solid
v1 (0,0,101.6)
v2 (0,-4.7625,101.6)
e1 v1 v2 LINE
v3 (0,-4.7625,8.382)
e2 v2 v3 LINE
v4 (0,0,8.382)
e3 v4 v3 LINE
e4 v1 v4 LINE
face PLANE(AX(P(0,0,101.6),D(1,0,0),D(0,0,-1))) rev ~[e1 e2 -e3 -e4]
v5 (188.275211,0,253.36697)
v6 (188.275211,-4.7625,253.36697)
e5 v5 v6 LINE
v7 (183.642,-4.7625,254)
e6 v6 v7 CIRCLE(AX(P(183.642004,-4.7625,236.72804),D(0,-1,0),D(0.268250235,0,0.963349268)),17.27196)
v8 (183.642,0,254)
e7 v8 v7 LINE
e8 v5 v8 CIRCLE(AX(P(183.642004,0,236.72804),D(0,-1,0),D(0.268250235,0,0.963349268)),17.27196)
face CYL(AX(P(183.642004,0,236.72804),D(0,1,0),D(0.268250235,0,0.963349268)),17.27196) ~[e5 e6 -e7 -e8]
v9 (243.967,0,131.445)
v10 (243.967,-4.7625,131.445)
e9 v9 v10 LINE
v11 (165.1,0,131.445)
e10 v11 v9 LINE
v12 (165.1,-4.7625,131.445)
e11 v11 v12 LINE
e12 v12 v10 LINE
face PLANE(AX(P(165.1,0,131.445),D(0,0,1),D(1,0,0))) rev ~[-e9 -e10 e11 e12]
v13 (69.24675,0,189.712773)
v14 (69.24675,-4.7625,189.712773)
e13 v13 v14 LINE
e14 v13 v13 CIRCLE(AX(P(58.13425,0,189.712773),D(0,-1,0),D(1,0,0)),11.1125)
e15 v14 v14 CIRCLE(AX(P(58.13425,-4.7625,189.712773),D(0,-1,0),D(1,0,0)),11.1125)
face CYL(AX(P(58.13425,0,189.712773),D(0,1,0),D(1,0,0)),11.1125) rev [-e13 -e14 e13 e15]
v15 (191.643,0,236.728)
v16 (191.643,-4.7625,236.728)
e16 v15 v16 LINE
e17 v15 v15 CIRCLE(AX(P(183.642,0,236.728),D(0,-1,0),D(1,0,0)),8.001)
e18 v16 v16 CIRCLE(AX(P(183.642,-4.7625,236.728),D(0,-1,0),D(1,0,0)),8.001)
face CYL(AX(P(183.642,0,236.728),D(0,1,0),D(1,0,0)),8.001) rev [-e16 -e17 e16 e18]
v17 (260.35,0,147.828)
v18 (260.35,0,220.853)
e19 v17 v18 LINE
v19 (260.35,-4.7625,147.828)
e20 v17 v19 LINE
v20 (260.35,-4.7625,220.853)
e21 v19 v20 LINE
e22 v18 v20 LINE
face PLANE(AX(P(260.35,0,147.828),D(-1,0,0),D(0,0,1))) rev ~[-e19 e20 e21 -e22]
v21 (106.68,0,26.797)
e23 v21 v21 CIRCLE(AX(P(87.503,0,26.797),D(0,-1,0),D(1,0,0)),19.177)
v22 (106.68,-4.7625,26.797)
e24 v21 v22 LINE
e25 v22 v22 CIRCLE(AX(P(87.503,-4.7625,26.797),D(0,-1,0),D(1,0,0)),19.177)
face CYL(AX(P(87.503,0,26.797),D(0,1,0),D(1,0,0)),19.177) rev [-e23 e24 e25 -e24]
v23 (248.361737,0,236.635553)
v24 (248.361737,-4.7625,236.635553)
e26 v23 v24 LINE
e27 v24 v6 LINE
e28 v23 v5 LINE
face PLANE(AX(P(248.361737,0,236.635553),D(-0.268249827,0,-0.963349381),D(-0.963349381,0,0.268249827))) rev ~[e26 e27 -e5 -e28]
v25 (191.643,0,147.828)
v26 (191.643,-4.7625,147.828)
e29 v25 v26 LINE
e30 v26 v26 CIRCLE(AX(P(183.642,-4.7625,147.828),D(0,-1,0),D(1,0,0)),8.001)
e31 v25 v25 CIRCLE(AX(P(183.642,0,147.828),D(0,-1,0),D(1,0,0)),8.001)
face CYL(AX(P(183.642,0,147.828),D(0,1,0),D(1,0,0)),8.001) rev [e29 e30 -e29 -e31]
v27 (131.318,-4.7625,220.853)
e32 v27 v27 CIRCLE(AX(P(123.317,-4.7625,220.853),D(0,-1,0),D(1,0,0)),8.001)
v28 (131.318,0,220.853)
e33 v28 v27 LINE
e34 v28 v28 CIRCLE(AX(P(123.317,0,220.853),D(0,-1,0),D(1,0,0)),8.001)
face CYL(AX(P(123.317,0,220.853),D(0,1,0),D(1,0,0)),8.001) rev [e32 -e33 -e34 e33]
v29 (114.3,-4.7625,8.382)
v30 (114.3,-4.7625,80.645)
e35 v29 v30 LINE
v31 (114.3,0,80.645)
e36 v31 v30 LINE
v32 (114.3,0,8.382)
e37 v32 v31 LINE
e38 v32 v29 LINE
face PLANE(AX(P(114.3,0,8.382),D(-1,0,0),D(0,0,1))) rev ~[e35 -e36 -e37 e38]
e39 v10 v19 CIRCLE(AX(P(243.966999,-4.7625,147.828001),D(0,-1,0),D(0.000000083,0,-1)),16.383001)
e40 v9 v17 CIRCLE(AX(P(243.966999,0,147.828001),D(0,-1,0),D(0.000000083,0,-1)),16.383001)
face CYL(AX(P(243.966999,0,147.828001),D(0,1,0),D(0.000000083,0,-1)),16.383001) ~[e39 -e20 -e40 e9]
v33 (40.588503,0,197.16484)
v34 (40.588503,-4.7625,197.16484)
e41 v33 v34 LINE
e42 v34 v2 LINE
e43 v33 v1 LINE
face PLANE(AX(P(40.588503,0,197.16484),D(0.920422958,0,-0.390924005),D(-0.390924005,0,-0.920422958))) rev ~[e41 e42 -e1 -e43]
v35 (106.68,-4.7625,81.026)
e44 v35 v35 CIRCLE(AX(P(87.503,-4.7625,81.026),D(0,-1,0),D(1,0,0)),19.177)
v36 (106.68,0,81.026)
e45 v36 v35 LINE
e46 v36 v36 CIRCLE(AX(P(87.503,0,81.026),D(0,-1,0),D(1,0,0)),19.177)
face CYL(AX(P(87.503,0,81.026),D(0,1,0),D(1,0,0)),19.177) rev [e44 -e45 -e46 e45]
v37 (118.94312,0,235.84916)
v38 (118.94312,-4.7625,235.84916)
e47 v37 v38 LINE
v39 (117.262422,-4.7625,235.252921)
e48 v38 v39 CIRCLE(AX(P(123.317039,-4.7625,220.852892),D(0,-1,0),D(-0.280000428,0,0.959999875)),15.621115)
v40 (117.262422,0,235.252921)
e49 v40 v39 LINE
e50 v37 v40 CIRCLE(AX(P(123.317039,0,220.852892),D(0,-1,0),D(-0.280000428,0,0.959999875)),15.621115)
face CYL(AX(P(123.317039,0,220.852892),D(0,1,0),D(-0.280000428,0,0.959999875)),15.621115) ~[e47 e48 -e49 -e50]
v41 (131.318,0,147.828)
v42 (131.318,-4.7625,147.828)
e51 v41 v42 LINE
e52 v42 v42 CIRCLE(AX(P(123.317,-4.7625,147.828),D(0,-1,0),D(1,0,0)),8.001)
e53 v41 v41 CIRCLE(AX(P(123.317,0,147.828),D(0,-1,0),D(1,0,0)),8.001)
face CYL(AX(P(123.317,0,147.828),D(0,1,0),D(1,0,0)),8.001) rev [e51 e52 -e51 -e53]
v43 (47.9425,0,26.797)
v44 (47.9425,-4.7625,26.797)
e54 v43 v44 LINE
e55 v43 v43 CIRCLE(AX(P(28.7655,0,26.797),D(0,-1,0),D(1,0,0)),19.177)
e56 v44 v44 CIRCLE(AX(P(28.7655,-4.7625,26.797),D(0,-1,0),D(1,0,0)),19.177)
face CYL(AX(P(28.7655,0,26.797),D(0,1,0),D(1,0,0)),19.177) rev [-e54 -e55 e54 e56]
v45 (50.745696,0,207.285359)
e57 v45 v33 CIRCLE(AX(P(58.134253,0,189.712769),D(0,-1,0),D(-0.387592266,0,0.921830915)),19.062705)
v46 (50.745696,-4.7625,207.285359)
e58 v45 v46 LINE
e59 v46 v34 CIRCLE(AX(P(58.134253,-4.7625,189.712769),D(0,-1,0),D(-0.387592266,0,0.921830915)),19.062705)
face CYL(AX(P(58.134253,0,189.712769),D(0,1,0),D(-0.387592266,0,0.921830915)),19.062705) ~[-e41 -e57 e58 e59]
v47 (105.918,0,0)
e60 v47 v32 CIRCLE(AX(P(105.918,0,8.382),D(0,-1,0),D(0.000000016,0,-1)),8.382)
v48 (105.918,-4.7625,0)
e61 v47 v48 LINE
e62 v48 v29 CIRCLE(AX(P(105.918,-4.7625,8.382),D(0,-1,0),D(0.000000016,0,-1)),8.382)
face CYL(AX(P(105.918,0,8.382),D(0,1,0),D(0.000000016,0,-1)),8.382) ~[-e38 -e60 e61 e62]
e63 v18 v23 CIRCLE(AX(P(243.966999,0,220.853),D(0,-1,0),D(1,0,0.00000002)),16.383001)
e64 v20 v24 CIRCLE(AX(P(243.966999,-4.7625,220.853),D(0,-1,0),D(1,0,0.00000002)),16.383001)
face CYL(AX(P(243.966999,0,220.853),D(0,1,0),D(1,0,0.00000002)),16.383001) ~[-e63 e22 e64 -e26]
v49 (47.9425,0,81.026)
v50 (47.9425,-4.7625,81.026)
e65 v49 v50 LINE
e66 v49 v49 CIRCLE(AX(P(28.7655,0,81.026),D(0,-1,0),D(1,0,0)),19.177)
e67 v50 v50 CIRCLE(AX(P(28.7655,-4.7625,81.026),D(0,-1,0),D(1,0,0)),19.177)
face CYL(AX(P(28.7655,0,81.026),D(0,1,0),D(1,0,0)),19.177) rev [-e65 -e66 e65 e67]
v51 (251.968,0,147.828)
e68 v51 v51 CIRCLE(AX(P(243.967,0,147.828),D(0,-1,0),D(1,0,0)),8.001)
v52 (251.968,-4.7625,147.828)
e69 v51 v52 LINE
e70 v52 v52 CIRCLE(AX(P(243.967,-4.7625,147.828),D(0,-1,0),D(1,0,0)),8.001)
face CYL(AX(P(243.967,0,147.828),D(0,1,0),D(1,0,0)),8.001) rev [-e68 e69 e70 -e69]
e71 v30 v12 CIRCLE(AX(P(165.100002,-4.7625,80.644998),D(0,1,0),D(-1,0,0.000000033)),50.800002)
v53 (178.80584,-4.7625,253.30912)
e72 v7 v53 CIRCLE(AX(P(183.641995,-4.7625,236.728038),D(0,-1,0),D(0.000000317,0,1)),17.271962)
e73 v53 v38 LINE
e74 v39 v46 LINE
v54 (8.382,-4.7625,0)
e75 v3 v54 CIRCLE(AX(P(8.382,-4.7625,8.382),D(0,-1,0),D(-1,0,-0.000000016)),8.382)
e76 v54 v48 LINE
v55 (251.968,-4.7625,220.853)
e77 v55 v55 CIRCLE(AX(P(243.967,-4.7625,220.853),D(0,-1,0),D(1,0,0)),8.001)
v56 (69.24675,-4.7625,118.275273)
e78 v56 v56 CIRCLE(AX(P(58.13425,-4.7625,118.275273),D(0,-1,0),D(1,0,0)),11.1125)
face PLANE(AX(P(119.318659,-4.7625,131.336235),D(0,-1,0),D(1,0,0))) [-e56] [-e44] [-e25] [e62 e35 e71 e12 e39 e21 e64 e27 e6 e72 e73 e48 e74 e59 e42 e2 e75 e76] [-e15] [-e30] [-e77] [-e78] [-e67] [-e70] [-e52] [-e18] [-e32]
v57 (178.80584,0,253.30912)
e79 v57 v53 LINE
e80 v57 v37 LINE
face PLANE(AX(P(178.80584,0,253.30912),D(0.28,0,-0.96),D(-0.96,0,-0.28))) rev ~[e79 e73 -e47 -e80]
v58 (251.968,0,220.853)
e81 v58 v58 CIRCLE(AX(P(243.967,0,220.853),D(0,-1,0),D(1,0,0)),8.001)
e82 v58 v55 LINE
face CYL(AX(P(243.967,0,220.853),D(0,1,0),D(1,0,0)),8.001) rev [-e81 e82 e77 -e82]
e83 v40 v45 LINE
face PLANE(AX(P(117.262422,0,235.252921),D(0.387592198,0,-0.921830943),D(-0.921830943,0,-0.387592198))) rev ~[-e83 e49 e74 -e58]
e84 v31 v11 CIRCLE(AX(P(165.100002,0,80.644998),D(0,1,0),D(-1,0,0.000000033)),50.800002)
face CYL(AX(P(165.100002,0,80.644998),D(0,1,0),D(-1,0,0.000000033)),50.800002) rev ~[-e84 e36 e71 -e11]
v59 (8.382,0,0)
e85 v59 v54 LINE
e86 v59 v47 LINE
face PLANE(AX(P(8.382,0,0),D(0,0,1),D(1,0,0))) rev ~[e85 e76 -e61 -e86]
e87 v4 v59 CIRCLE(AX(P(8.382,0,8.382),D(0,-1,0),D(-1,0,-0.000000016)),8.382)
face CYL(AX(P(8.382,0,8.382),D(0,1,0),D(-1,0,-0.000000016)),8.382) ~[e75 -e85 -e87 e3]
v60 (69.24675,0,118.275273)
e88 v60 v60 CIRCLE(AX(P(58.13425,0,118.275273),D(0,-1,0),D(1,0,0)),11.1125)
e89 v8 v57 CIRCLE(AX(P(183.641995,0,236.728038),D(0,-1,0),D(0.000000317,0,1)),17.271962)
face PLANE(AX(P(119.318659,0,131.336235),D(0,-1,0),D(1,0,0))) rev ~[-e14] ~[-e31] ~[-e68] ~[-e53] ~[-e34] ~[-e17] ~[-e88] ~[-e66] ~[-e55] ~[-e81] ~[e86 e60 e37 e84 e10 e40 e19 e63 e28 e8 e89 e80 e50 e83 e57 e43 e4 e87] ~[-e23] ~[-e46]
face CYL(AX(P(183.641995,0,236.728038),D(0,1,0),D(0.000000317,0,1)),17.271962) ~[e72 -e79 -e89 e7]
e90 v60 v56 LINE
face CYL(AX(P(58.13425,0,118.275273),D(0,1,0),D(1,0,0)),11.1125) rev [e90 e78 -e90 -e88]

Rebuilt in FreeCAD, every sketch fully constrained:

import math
import FreeCAD as App
import Part
import Sketcher
Q = App.Units.Quantity

doc = App.newDocument("Part")
body = doc.addObject("PartDesign::Body", "Body")

# Sketch on XZ plane
sketch1 = body.newObject("Sketcher::SketchObject", "Sketch")
sketch1.AttachmentSupport = (doc.getObject("XZ_Plane"), [""])
sketch1.MapMode = "FlatFace"
sketch1.addGeometry(Part.ArcOfCircle(Part.Circle(App.Vector(8.382, 8.382, 0), App.Vector(0, 0, 1), 8.382), math.radians(-179.999999), math.radians(-90.000001)), False)
sketch1.addGeometry(Part.LineSegment(App.Vector(8.382, 0, 0), App.Vector(105.918, 0, 0)), False)
sketch1.addGeometry(Part.ArcOfCircle(Part.Circle(App.Vector(105.918, 8.382, 0), App.Vector(0, 0, 1), 8.382), math.radians(-89.999999), math.radians(-0.000001)), False)
sketch1.addGeometry(Part.LineSegment(App.Vector(114.3, 8.382, 0), App.Vector(114.3, 80.645, 0)), False)
sketch1.addGeometry(Part.ArcOfCircle(Part.Circle(App.Vector(165.100002, 80.644998, 0), App.Vector(0, 0, 1), 50.800002), math.radians(90.000002), math.radians(179.999998)), False)
sketch1.addGeometry(Part.LineSegment(App.Vector(165.1, 131.445, 0), App.Vector(243.967, 131.445, 0)), False)
sketch1.addGeometry(Part.ArcOfCircle(Part.Circle(App.Vector(243.966999, 147.828001, 0), App.Vector(0, 0, 1), 16.383001), math.radians(-89.999995), math.radians(-0.000005)), False)
sketch1.addGeometry(Part.LineSegment(App.Vector(260.35, 147.828, 0), App.Vector(260.35, 220.853, 0)), False)
sketch1.addGeometry(Part.ArcOfCircle(Part.Circle(App.Vector(243.966999, 220.853, 0), App.Vector(0, 0, 1), 16.383001), math.radians(0.000001), math.radians(74.43985)), False)
sketch1.addGeometry(Part.LineSegment(App.Vector(248.361737, 236.635553, 0), App.Vector(188.275211, 253.36697, 0)), False)
sketch1.addGeometry(Part.ArcOfCircle(Part.Circle(App.Vector(183.642004, 236.72804, 0), App.Vector(0, 0, 1), 17.27196), math.radians(74.439828), math.radians(90.000012)), False)
sketch1.addGeometry(Part.ArcOfCircle(Part.Circle(App.Vector(183.641995, 236.728038, 0), App.Vector(0, 0, 1), 17.271962), math.radians(89.999982), math.radians(106.260223)), False)
sketch1.addGeometry(Part.LineSegment(App.Vector(178.80584, 253.30912, 0), App.Vector(118.94312, 235.84916, 0)), False)
sketch1.addGeometry(Part.ArcOfCircle(Part.Circle(App.Vector(123.317039, 220.852892, 0), App.Vector(0, 0, 1), 15.621115), math.radians(106.26023), math.radians(112.80474)), False)
sketch1.addGeometry(Part.LineSegment(App.Vector(117.262422, 235.252921, 0), App.Vector(50.745696, 207.285359, 0)), False)
sketch1.addGeometry(Part.ArcOfCircle(Part.Circle(App.Vector(58.134253, 189.712769, 0), App.Vector(0, 0, 1), 19.062705), math.radians(112.804766), math.radians(156.987986)), False)
sketch1.addGeometry(Part.LineSegment(App.Vector(40.588503, 197.16484, 0), App.Vector(0, 101.6, 0)), False)
sketch1.addGeometry(Part.LineSegment(App.Vector(0, 101.6, 0), App.Vector(0, 8.382, 0)), False)
sketch1.addGeometry(Part.Circle(App.Vector(28.7655, 26.797, 0), App.Vector(0, 0, 1), 19.177), False)
sketch1.addGeometry(Part.Circle(App.Vector(87.503, 26.797, 0), App.Vector(0, 0, 1), 19.177), False)
sketch1.addGeometry(Part.Circle(App.Vector(28.7655, 81.026, 0), App.Vector(0, 0, 1), 19.177), False)
sketch1.addGeometry(Part.Circle(App.Vector(58.13425, 118.275273, 0), App.Vector(0, 0, 1), 11.1125), False)
sketch1.addGeometry(Part.Circle(App.Vector(87.503, 81.026, 0), App.Vector(0, 0, 1), 19.177), False)
sketch1.addGeometry(Part.Circle(App.Vector(123.317, 147.828, 0), App.Vector(0, 0, 1), 8.001), False)
sketch1.addGeometry(Part.Circle(App.Vector(58.13425, 189.712773, 0), App.Vector(0, 0, 1), 11.1125), False)
sketch1.addGeometry(Part.Circle(App.Vector(123.317, 220.853, 0), App.Vector(0, 0, 1), 8.001), False)
sketch1.addGeometry(Part.Circle(App.Vector(183.642, 147.828, 0), App.Vector(0, 0, 1), 8.001), False)
sketch1.addGeometry(Part.Circle(App.Vector(243.967, 147.828, 0), App.Vector(0, 0, 1), 8.001), False)
sketch1.addGeometry(Part.Circle(App.Vector(183.642, 236.728, 0), App.Vector(0, 0, 1), 8.001), False)
sketch1.addGeometry(Part.Circle(App.Vector(243.967, 220.853, 0), App.Vector(0, 0, 1), 8.001), False)
sketch1.addConstraint(Sketcher.Constraint("Tangent", 0, 2, 1, 1))
sketch1.addConstraint(Sketcher.Constraint("Tangent", 1, 2, 2, 1))
sketch1.addConstraint(Sketcher.Constraint("Tangent", 2, 2, 3, 1))
sketch1.addConstraint(Sketcher.Constraint("Tangent", 3, 2, 4, 2))
sketch1.addConstraint(Sketcher.Constraint("Tangent", 4, 1, 5, 1))
sketch1.addConstraint(Sketcher.Constraint("Tangent", 5, 2, 6, 1))
sketch1.addConstraint(Sketcher.Constraint("Tangent", 6, 2, 7, 1))
sketch1.addConstraint(Sketcher.Constraint("Tangent", 7, 2, 8, 1))
sketch1.addConstraint(Sketcher.Constraint("Tangent", 8, 2, 9, 1))
sketch1.addConstraint(Sketcher.Constraint("Tangent", 9, 2, 10, 1))
sketch1.addConstraint(Sketcher.Constraint("Tangent", 10, 2, 11, 1))
sketch1.addConstraint(Sketcher.Constraint("Tangent", 11, 2, 12, 1))
sketch1.addConstraint(Sketcher.Constraint("Tangent", 12, 2, 13, 1))
sketch1.addConstraint(Sketcher.Constraint("Tangent", 13, 2, 14, 1))
sketch1.addConstraint(Sketcher.Constraint("Tangent", 14, 2, 15, 1))
sketch1.addConstraint(Sketcher.Constraint("Tangent", 15, 2, 16, 1))
sketch1.addConstraint(Sketcher.Constraint("Coincident", 16, 2, 17, 1))
sketch1.addConstraint(Sketcher.Constraint("Tangent", 17, 2, 0, 1))
sketch1.addConstraint(Sketcher.Constraint("Horizontal", 1))
sketch1.addConstraint(Sketcher.Constraint("Vertical", 3))
sketch1.addConstraint(Sketcher.Constraint("Horizontal", 5))
sketch1.addConstraint(Sketcher.Constraint("Vertical", 7))
sketch1.addConstraint(Sketcher.Constraint("Vertical", 17))
sketch1.addConstraint(Sketcher.Constraint("Coincident", 24, 3, 15, 3))
sketch1.addConstraint(Sketcher.Constraint("Coincident", 27, 3, 6, 3))
sketch1.addConstraint(Sketcher.Constraint("Coincident", 29, 3, 8, 3))
sketch1.addConstraint(Sketcher.Constraint("Equal", 0, 2))
sketch1.addConstraint(Sketcher.Constraint("Equal", 6, 8))
sketch1.addConstraint(Sketcher.Constraint("Equal", 10, 11))
sketch1.addConstraint(Sketcher.Constraint("Equal", 18, 19))
sketch1.addConstraint(Sketcher.Constraint("Equal", 19, 20))
sketch1.addConstraint(Sketcher.Constraint("Equal", 20, 22))
sketch1.addConstraint(Sketcher.Constraint("Equal", 21, 24))
sketch1.addConstraint(Sketcher.Constraint("Equal", 23, 25))
sketch1.addConstraint(Sketcher.Constraint("Equal", 25, 26))
sketch1.addConstraint(Sketcher.Constraint("Equal", 26, 27))
sketch1.addConstraint(Sketcher.Constraint("Equal", 27, 28))
sketch1.addConstraint(Sketcher.Constraint("Equal", 28, 29))
sketch1.addConstraint(Sketcher.Constraint("PointOnObject", 0, 2, -1))
sketch1.addConstraint(Sketcher.Constraint("PointOnObject", 16, 2, -2))
sketch1.addConstraint(Sketcher.Constraint("Horizontal", 18, 3, 19, 3))
sketch1.addConstraint(Sketcher.Constraint("Horizontal", 20, 3, 22, 3))
sketch1.addConstraint(Sketcher.Constraint("Horizontal", 6, 3, 23, 3))
sketch1.addConstraint(Sketcher.Constraint("Horizontal", 8, 3, 25, 3))
sketch1.addConstraint(Sketcher.Constraint("Horizontal", 23, 3, 26, 3))
sketch1.addConstraint(Sketcher.Constraint("Vertical", 18, 3, 20, 3))
sketch1.addConstraint(Sketcher.Constraint("Vertical", 19, 3, 22, 3))
sketch1.addConstraint(Sketcher.Constraint("Vertical", 21, 3, 24, 3))
sketch1.addConstraint(Sketcher.Constraint("Vertical", 23, 3, 25, 3))
sketch1.addConstraint(Sketcher.Constraint("Vertical", 26, 3, 28, 3))
sketch1.addConstraint(Sketcher.Constraint("Vertical", 28, 3, 10, 2))
sketch1.addConstraint(Sketcher.Constraint("Radius", 4, Q("2.0000001 in")))
sketch1.addConstraint(Sketcher.Constraint("Diameter", 18, Q("1.51 in")))
sketch1.addConstraint(Sketcher.Constraint("Diameter", 23, Q("0.63 in")))
sketch1.addConstraint(Sketcher.Constraint("Radius", 0, Q("0.33 in")))
sketch1.addConstraint(Sketcher.Constraint("Diameter", 21, Q("0.875 in")))
sketch1.addConstraint(Sketcher.Constraint("DistanceY", -1, 1, 10, 2, Q("10 in")))
sketch1.addConstraint(Sketcher.Constraint("DistanceY", -1, 1, 16, 2, Q("4 in")))
sketch1.addConstraint(Sketcher.Constraint("Radius", 6, Q("0.6450001 in")))
sketch1.addConstraint(Sketcher.Constraint("DistanceX", 1, 1, 1, 2, Q("3.84 in")))
sketch1.addConstraint(Sketcher.Constraint("Radius", 15, Q("0.7505002 in")))
sketch1.addConstraint(Sketcher.Constraint("DistanceX", 0, 3, 10, 3, Q("6.9000001 in")))
sketch1.addConstraint(Sketcher.Constraint("DistanceX", 5, 1, 5, 2, Q("3.105 in")))
sketch1.addConstraint(Sketcher.Constraint("DistanceY", 3, 1, 3, 2, Q("2.845 in")))
sketch1.addConstraint(Sketcher.Constraint("DistanceY", 7, 1, 7, 2, Q("2.875 in")))
sketch1.addConstraint(Sketcher.Constraint("DistanceY", -1, 1, 20, 3, Q("3.19 in")))
sketch1.addConstraint(Sketcher.Constraint("DistanceX", -1, 1, 26, 3, Q("7.23 in")))
sketch1.addConstraint(Sketcher.Constraint("DistanceY", -1, 1, 28, 3, Q("9.32 in")))
sketch1.addConstraint(Sketcher.Constraint("DistanceY", 18, 3, 4, 3, Q("2.1199999 in")))
sketch1.addConstraint(Sketcher.Constraint("DistanceX", 22, 3, 23, 3, Q("1.41 in")))
sketch1.addConstraint(Sketcher.Constraint("Distance", 12, Q("2.455 in")))
sketch1.addConstraint(Sketcher.Constraint("DistanceX", -1, 1, 19, 3, Q("3.445 in")))
sketch1.addConstraint(Sketcher.Constraint("Radius", 10, Q("17.27196 mm")))
sketch1.addConstraint(Sketcher.Constraint("DistanceX", 18, 3, 15, 3, Q("1.1562501 in")))
sketch1.addConstraint(Sketcher.Constraint("DistanceX", 18, 3, 19, 3, Q("2.3125 in")))
sketch1.addConstraint(Sketcher.Constraint("DistanceY", 21, 3, 24, 3, Q("2.8125 in")))
sketch1.addConstraint(Sketcher.Constraint("DistanceX", -1, 1, 11, 2, Q("7.0396 in")))
sketch1.addConstraint(Sketcher.Constraint("Radius", 13, Q("15.621115 mm")))
sketch1.addConstraint(Sketcher.Constraint("DistanceX", 13, 2, 12, 2, Q("1.680698 mm")))
pad1 = body.newObject("PartDesign::Pad", "Pad")
pad1.Profile = sketch1
pad1.Length = Q("0.1875 in")

doc.recompute()
